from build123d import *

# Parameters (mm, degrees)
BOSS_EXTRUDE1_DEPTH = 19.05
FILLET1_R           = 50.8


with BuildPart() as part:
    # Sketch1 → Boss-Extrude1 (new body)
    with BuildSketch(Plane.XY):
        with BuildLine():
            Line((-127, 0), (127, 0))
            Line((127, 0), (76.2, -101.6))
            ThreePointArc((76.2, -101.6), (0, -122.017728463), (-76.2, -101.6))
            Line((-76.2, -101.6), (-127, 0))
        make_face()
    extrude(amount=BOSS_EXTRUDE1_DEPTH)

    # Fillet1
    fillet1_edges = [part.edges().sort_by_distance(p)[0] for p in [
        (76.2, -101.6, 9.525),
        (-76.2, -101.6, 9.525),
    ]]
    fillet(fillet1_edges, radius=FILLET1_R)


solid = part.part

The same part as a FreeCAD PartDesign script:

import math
import FreeCAD as App
import Part
import Sketcher
Q = App.Units.Quantity


def edges_at(feature, points):
    """Names of the edges that pass closest to the given points."""
    edges = feature.Shape.Edges
    near = lambda p: min(range(len(edges)), key=lambda i: edges[i].distToShape(Part.Vertex(*p))[0])
    return sorted({f"Edge{near(p) + 1}" for p in points})

doc = App.newDocument("Part")
body = doc.addObject("PartDesign::Body", "Body")

# Sketch on XY plane
sketch1 = doc.addObject("Sketcher::SketchObject", "Sketch")
body.addObject(sketch1)
sketch1.AttachmentSupport = (doc.XY_Plane, [""])
sketch1.MapMode = "FlatFace"
sketch1.addGeometry(Part.LineSegment(App.Vector(127, 0, 0), App.Vector(-127, 0, 0)), False)
sketch1.addGeometry(Part.LineSegment(App.Vector(-127, 0, 0), App.Vector(-76, -102, 0)), False)
sketch1.addGeometry(Part.ArcOfCircle(Part.Circle(App.Vector(0, 30, 0), App.Vector(0, 0, 1), 152), math.radians(-120), math.radians(-60)), False)
sketch1.addGeometry(Part.LineSegment(App.Vector(76, -102, 0), App.Vector(127, 0, 0)), False)
sketch1.addConstraint(Sketcher.Constraint("Coincident", 0, 2, 1, 1))
sketch1.addConstraint(Sketcher.Constraint("Coincident", 1, 2, 2, 1))
sketch1.addConstraint(Sketcher.Constraint("Coincident", 2, 2, 3, 1))
sketch1.addConstraint(Sketcher.Constraint("Coincident", 3, 2, 0, 1))
sketch1.addConstraint(Sketcher.Constraint("Horizontal", 0))
sketch1.addConstraint(Sketcher.Constraint("Symmetric", 0, 2, 3, 2, -1, 1))
sketch1.addConstraint(Sketcher.Constraint("Symmetric", 1, 2, 2, 2, -2))
sketch1.addConstraint(Sketcher.Constraint("Radius", 2, Q("6 in")))
sketch1.addConstraint(Sketcher.Constraint("DistanceX", 0, 2, 0, 1, Q("10 in")))
sketch1.addConstraint(Sketcher.Constraint("DistanceX", 1, 2, -1, 1, Q("3 in")))
sketch1.addConstraint(Sketcher.Constraint("DistanceY", 1, 2, -1, 1, Q("4 in")))
pad1 = doc.addObject("PartDesign::Pad", "Pad")
body.addObject(pad1)
pad1.Profile = sketch1
pad1.Length = Q("0.75 in")
doc.recompute()

fillet = doc.addObject("PartDesign::Fillet", "Fillet")
body.addObject(fillet)
fillet.Base = (pad1, edges_at(pad1, [(76.2, -101.6, 9.525), (-76.2, -101.6, 9.525)]))
fillet.Radius = Q("2 in")

doc.recompute()
